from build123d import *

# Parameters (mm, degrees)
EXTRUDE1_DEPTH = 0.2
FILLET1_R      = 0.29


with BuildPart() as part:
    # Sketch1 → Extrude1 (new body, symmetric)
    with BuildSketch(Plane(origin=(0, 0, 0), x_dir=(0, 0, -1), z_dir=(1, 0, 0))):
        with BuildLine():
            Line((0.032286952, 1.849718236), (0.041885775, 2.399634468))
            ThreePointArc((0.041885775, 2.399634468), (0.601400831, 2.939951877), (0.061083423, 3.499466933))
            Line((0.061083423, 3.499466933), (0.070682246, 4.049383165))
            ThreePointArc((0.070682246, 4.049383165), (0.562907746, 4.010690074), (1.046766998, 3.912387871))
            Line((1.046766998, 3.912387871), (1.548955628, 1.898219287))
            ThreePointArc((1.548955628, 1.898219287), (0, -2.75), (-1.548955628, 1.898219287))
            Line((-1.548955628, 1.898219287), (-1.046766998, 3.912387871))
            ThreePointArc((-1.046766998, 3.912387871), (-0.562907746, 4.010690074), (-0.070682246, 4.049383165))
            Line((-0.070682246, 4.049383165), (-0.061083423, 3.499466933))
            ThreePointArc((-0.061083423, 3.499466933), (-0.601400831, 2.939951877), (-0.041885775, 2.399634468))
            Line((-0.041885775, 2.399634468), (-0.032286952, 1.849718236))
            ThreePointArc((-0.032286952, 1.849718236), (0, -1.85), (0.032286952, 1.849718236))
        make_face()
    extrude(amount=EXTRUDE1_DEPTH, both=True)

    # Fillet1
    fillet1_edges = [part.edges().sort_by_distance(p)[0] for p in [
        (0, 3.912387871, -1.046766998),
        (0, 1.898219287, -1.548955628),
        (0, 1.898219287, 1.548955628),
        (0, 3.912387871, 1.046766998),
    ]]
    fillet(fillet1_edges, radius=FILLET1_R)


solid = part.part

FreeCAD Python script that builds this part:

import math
import FreeCAD as App
import Part
import Sketcher
from FreeCAD import Vector
Q = App.Units.Quantity


def edges_at(feature, points):
    """Names of the edges that pass closest to the given points."""
    edges = feature.Shape.Edges
    near = lambda p: min(range(len(edges)), key=lambda i: edges[i].distToShape(Part.Vertex(*p))[0])
    return sorted({f"Edge{near(p) + 1}" for p in points})

doc = App.newDocument("Part")
body = doc.addObject("PartDesign::Body", "Body")

# Sketch on YZ plane
sketch1 = body.newObject("Sketcher::SketchObject", "Sketch")
sketch1.AttachmentSupport = (doc.getObject("YZ_Plane"), [""])
sketch1.MapMode = "FlatFace"
sketch1.addGeometry(Part.LineSegment(Vector(2.399634, -0.041886, 0), Vector(1.849718, -0.032287, 0)), False)
sketch1.addGeometry(Part.ArcOfCircle(Part.Circle(Vector(0, 0, 0), Vector(0, 0, 1), 1.85), math.radians(1), math.radians(359)), False)
sketch1.addGeometry(Part.LineSegment(Vector(1.849718, 0.032287, 0), Vector(2.399634, 0.041886, 0)), False)
sketch1.addGeometry(Part.ArcOfCircle(Part.Circle(Vector(2.949551, 0.051485, 0), Vector(0, 0, 1), 0.55), math.radians(1), math.radians(181)), False)
sketch1.addGeometry(Part.LineSegment(Vector(3.499467, 0.061083, 0), Vector(4.049383, 0.070682, 0)), False)
sketch1.addGeometry(Part.ArcOfCircle(Part.Circle(Vector(0, 0, 0), Vector(0, 0, 1), 4.05), math.radians(1), math.radians(14.978762)), False)
sketch1.addGeometry(Part.LineSegment(Vector(3.912388, 1.046767, 0), Vector(1.898219, 1.548956, 0)), False)
sketch1.addGeometry(Part.ArcOfCircle(Part.Circle(Vector(-0.167806, 0, 0), Vector(0, 0, 1), 2.582194), math.radians(36.859895), math.radians(323.140105)), False)
sketch1.addGeometry(Part.LineSegment(Vector(1.898219, -1.548956, 0), Vector(3.912388, -1.046767, 0)), False)
sketch1.addGeometry(Part.ArcOfCircle(Part.Circle(Vector(0, 0, 0), Vector(0, 0, 1), 4.05), math.radians(-14.978762), math.radians(-1)), False)
sketch1.addGeometry(Part.LineSegment(Vector(4.049383, -0.070682, 0), Vector(3.499467, -0.061083, 0)), False)
sketch1.addGeometry(Part.ArcOfCircle(Part.Circle(Vector(2.949551, -0.051485, 0), Vector(0, 0, 1), 0.55), math.radians(179), math.radians(359)), False)
sketch1.addConstraint(Sketcher.Constraint("Coincident", 0, 2, 1, 2))
sketch1.addConstraint(Sketcher.Constraint("Coincident", 1, 1, 2, 1))
sketch1.addConstraint(Sketcher.Constraint("Coincident", 2, 2, 3, 2))
sketch1.addConstraint(Sketcher.Constraint("Coincident", 3, 1, 4, 1))
sketch1.addConstraint(Sketcher.Constraint("Coincident", 4, 2, 5, 1))
sketch1.addConstraint(Sketcher.Constraint("Coincident", 5, 2, 6, 1))
sketch1.addConstraint(Sketcher.Constraint("Coincident", 6, 2, 7, 1))
sketch1.addConstraint(Sketcher.Constraint("Coincident", 7, 2, 8, 1))
sketch1.addConstraint(Sketcher.Constraint("Coincident", 8, 2, 9, 1))
sketch1.addConstraint(Sketcher.Constraint("Coincident", 9, 2, 10, 1))
sketch1.addConstraint(Sketcher.Constraint("Coincident", 10, 2, 11, 2))
sketch1.addConstraint(Sketcher.Constraint("Coincident", 11, 1, 0, 1))
sketch1.addConstraint(Sketcher.Constraint("Coincident", 1, 3, -1, 1))
sketch1.addConstraint(Sketcher.Constraint("Coincident", 5, 3, -1, 1))
sketch1.addConstraint(Sketcher.Constraint("Coincident", 9, 3, -1, 1))
sketch1.addConstraint(Sketcher.Constraint("Equal", 5, 9))
sketch1.addConstraint(Sketcher.Constraint("Equal", 3, 11))
sketch1.addConstraint(Sketcher.Constraint("Symmetric", 3, 3, 11, 3, -1))
sketch1.addConstraint(Sketcher.Constraint("Symmetric", 6, 2, 7, 2, -1))
sketch1.addConstraint(Sketcher.Constraint("Parallel", 2, 4))
sketch1.addConstraint(Sketcher.Constraint("Parallel", 0, 10))
sketch1.addConstraint(Sketcher.Constraint("Vertical", 0, 2, 1, 1))
sketch1.addConstraint(Sketcher.Constraint("Vertical", 5, 2, 8, 2))
sketch1.addConstraint(Sketcher.Constraint("Vertical", 4, 2, 9, 2))
sketch1.addConstraint(Sketcher.Constraint("Vertical", 3, 1, 10, 2))
sketch1.addConstraint(Sketcher.Constraint("Equal", 2, 4))
sketch1.addConstraint(Sketcher.Constraint("Angle", 0, Q("179 deg")))
sketch1.addConstraint(Sketcher.Constraint("Angle", 6, Q("166 deg")))
sketch1.addConstraint(Sketcher.Constraint("Radius", 1, Q("1.85 mm")))
sketch1.addConstraint(Sketcher.Constraint("Radius", 3, Q("0.55 mm")))
sketch1.addConstraint(Sketcher.Constraint("Radius", 5, Q("4.05 mm")))
sketch1.addConstraint(Sketcher.Constraint("Radius", 7, Q("2.582194 mm")))
sketch1.addConstraint(Sketcher.Constraint("DistanceY", 2, 2, 3, 3, Q("0.009599 mm")))
sketch1.addConstraint(Sketcher.Constraint("DistanceY", 3, 3, 3, 1, Q("0.009599 mm")))
sketch1.addConstraint(Sketcher.Constraint("DistanceX", 1, 1, 6, 2, Q("0.048501 mm")))
sketch1.addConstraint(Sketcher.Constraint("Distance", 6, Q("2.07583 mm")))
sketch1.addConstraint(Sketcher.Constraint("DistanceX", -1, 1, 3, 3, Q("2.949551 mm")))
pad1 = body.newObject("PartDesign::Pad", "Pad")
pad1.Profile = sketch1
pad1.Length = 0.4
pad1.Midplane = True
doc.recompute()

fillet = body.newObject("PartDesign::Fillet", "Fillet")
fillet.Base = (pad1, edges_at(pad1, [
    (0, 3.912, -1.047),
    (0, 1.898, -1.549),
    (0, 1.898, 1.549),
    (0, 3.912, 1.047),
]))
fillet.Radius = 0.29

doc.recompute()
